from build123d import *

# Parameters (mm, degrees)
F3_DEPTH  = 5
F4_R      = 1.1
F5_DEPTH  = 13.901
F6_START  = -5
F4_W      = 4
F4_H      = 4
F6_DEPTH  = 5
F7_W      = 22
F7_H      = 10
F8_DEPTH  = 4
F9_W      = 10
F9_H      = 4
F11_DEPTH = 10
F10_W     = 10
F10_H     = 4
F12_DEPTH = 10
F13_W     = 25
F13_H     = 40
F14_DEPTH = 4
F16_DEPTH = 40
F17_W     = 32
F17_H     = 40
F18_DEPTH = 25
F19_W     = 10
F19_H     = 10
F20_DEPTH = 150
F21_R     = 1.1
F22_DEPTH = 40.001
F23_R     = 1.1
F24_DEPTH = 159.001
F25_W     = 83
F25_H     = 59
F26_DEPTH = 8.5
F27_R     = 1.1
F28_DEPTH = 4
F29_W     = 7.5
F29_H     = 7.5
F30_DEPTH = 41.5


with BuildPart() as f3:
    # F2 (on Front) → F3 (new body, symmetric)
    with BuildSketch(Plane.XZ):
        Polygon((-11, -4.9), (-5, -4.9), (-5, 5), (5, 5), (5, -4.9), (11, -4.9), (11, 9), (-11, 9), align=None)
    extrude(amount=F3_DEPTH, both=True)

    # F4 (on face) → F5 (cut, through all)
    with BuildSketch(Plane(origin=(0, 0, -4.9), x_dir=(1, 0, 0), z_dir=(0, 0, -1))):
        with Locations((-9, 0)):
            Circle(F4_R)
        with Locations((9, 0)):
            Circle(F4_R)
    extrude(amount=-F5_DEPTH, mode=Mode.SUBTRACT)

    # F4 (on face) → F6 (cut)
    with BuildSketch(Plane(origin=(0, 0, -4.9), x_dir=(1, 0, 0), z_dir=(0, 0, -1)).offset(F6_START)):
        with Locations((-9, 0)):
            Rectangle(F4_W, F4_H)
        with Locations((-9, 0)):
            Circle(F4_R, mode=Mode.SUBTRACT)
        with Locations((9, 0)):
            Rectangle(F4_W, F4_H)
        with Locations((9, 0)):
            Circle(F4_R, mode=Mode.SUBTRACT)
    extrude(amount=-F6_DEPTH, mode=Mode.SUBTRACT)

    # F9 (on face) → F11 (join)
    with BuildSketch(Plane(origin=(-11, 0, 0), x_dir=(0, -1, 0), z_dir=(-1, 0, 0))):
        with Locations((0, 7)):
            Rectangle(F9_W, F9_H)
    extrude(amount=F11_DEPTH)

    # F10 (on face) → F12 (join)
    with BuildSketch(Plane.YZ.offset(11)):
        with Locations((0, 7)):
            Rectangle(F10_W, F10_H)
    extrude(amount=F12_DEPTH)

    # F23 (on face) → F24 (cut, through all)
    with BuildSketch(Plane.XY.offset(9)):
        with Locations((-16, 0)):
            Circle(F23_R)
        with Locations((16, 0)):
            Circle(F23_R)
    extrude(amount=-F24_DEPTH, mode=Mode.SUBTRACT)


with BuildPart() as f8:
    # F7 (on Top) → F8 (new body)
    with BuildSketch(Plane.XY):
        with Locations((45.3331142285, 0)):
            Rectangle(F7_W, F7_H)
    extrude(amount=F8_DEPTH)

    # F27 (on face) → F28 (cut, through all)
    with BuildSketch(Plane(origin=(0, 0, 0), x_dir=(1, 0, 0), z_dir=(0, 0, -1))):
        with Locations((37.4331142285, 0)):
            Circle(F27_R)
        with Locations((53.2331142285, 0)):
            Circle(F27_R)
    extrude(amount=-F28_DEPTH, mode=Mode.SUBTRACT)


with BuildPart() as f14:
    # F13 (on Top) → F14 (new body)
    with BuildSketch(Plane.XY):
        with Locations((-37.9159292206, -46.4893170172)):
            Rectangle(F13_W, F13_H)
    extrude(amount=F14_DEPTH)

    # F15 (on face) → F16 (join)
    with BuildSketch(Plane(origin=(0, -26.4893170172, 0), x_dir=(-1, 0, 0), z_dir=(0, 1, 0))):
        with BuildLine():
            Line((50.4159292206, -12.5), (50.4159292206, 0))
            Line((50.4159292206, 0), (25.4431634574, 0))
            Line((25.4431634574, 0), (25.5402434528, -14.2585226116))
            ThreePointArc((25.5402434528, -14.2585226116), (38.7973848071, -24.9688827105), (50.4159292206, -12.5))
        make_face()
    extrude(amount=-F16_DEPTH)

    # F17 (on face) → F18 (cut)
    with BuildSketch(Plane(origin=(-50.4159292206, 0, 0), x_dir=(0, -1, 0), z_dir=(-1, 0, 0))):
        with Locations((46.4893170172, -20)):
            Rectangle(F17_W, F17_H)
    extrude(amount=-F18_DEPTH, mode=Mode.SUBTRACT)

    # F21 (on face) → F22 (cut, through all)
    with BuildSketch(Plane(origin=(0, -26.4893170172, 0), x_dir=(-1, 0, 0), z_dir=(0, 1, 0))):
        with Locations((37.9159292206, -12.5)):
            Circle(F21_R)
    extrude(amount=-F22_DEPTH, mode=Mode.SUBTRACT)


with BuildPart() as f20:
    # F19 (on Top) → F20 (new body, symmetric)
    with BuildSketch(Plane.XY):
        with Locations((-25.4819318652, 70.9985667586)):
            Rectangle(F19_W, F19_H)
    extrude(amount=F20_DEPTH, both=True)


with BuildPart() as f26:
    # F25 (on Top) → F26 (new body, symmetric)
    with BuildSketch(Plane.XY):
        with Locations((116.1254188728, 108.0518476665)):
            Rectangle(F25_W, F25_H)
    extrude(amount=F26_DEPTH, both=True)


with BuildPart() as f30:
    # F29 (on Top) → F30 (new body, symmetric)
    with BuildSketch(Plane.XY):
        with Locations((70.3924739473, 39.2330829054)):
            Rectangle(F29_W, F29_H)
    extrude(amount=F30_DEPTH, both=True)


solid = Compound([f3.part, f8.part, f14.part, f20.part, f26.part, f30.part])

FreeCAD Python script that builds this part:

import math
import FreeCAD as App
import Part
import Sketcher

V = App.Vector


def add_polygon(sketch, points):
    """Adds a closed chain of lines whose ends are joined by coincident constraints."""
    first, n = sketch.GeometryCount, len(points)
    for a, b in zip(points, points[1:] + points[:1]):
        sketch.addGeometry(Part.LineSegment(App.Vector(*a, 0), App.Vector(*b, 0)), False)
    for i in range(n):
        sketch.addConstraint(Sketcher.Constraint("Coincident", first + i, 2, first + (i + 1) % n, 1))

doc = App.newDocument("Part")
body = doc.addObject("PartDesign::Body", "Body")

# Sketch on XZ plane
sketch1 = body.newObject("Sketcher::SketchObject", "Sketch")
sketch1.AttachmentSupport = (doc.getObject("XZ_Plane"), [""])
sketch1.MapMode = "FlatFace"
add_polygon(sketch1, [(-11, -4.9), (-5, -4.9), (-5, 5), (5, 5), (5, -4.9), (11, -4.9), (11, 9), (-11, 9)])  # lines 0-7
sketch1.addConstraint([
    Sketcher.Constraint("Horizontal", 0),
    Sketcher.Constraint("Vertical", 1),
    Sketcher.Constraint("Horizontal", 2),
    Sketcher.Constraint("Vertical", 3),
    Sketcher.Constraint("Horizontal", 4),
    Sketcher.Constraint("Vertical", 5),
    Sketcher.Constraint("Horizontal", 6),
    Sketcher.Constraint("Vertical", 7),
    Sketcher.Constraint("Symmetric", 0, 2, 3, 2, -2),
    Sketcher.Constraint("Equal", 0, 4),
    Sketcher.Constraint("DistanceX", 0, 1, 0, 2, 6.0),
    Sketcher.Constraint("DistanceX", 2, 1, 2, 2, 10.0),
    Sketcher.Constraint("DistanceY", 1, 1, 1, 2, 9.9),
    Sketcher.Constraint("DistanceY", 5, 1, 5, 2, 13.9),
    Sketcher.Constraint("DistanceY", -1, 1, 1, 2, 5.0),
])
pad1 = body.newObject("PartDesign::Pad", "Pad")
pad1.Profile = sketch1
pad1.Length = 10
pad1.Midplane = True

# Sketch on XY plane
sketch2 = body.newObject("Sketcher::SketchObject", "Sketch001")
sketch2.AttachmentSupport = (doc.getObject("XY_Plane"), [""])
sketch2.MapMode = "FlatFace"
sketch2.AttachmentOffset = App.Placement(V(0, 0, -4.9), App.Rotation())
sketch2.addGeometry([
    Part.Circle(V(-9, 0, 0), V(0, 0, 1), 1.1),
    Part.Circle(V(9, 0, 0), V(0, 0, 1), 1.1),
], False)
sketch2.addConstraint([
    Sketcher.Constraint("Equal", 0, 1),
    Sketcher.Constraint("Symmetric", 0, 3, 1, 3, -1, 1),
    Sketcher.Constraint("PointOnObject", 0, 3, -1),
    Sketcher.Constraint("Diameter", 0, 2.2),
    Sketcher.Constraint("DistanceX", 0, 3, -1, 1, 9.0),
])
pocket1 = body.newObject("PartDesign::Pocket", "Pocket")
pocket1.Profile = sketch2
pocket1.Type = "ThroughAll"
pocket1.Reversed = True

# Sketch on XY plane
sketch3 = body.newObject("Sketcher::SketchObject", "Sketch002")
sketch3.AttachmentSupport = (doc.getObject("XY_Plane"), [""])
sketch3.MapMode = "FlatFace"
sketch3.AttachmentOffset = App.Placement(V(0, 0, 0.1), App.Rotation())
add_polygon(sketch3, [(-11, -2), (-11, 2), (-7, 2), (-7, -2)])  # lines 0-3
sketch3.addGeometry(Part.Circle(V(-9, 0, 0), V(0, 0, 1), 1.1), False)  # 4
add_polygon(sketch3, [(7, -2), (7, 2), (11, 2), (11, -2)])  # lines 5-8
sketch3.addGeometry(Part.Circle(V(9, 0, 0), V(0, 0, 1), 1.1), False)  # 9
sketch3.addConstraint([
    Sketcher.Constraint("Vertical", 0),
    Sketcher.Constraint("Horizontal", 1),
    Sketcher.Constraint("Vertical", 2),
    Sketcher.Constraint("Horizontal", 3),
    Sketcher.Constraint("Vertical", 5),
    Sketcher.Constraint("Horizontal", 6),
    Sketcher.Constraint("Vertical", 7),
    Sketcher.Constraint("Horizontal", 8),
    Sketcher.Constraint("Equal", 4, 9),
    Sketcher.Constraint("Symmetric", 4, 3, 9, 3, -1, 1),
    Sketcher.Constraint("Symmetric", 2, 2, 5, 2, -1, 1),
    Sketcher.Constraint("Symmetric", 0, 2, 7, 2, -1, 1),
    Sketcher.Constraint("PointOnObject", 4, 3, -1),
    Sketcher.Constraint("Horizontal", 1, 2, 5, 2),
    Sketcher.Constraint("Equal", 8, 0),
    Sketcher.Constraint("Diameter", 4, 2.2),
    Sketcher.Constraint("DistanceX", 1, 1, 1, 2, 4.0),
    Sketcher.Constraint("DistanceX", 4, 3, -1, 1, 9.0),
    Sketcher.Constraint("DistanceX", 0, 2, -1, 1, 11.0),
])
pocket2 = body.newObject("PartDesign::Pocket", "Pocket001")
pocket2.Profile = sketch3
pocket2.Length = 5
pocket2.Reversed = True

# Sketch on YZ plane
sketch4 = body.newObject("Sketcher::SketchObject", "Sketch003")
sketch4.AttachmentSupport = (doc.getObject("YZ_Plane"), [""])
sketch4.MapMode = "FlatFace"
sketch4.AttachmentOffset = App.Placement(V(0, 0, -11), App.Rotation())
add_polygon(sketch4, [(5, 9), (5, 5), (-5, 5), (-5, 9)])  # lines 0-3
sketch4.addConstraint([
    Sketcher.Constraint("Vertical", 0),
    Sketcher.Constraint("Horizontal", 1),
    Sketcher.Constraint("Vertical", 2),
    Sketcher.Constraint("Horizontal", 3),
    Sketcher.Constraint("DistanceX", 1, 2, 1, 1, 10.0),
    Sketcher.Constraint("DistanceY", 0, 2, 0, 1, 4.0),
    Sketcher.Constraint("DistanceX", -1, 1, 0, 2, 5.0),
    Sketcher.Constraint("DistanceY", -1, 1, 0, 2, 5.0),
])
pad2 = body.newObject("PartDesign::Pad", "Pad001")
pad2.Profile = sketch4
pad2.Length = 10
pad2.Reversed = True

# Sketch on YZ plane
sketch5 = body.newObject("Sketcher::SketchObject", "Sketch004")
sketch5.AttachmentSupport = (doc.getObject("YZ_Plane"), [""])
sketch5.MapMode = "FlatFace"
sketch5.AttachmentOffset = App.Placement(V(0, 0, 11), App.Rotation())
add_polygon(sketch5, [(-5, 9), (-5, 5), (5, 5), (5, 9)])  # lines 0-3
sketch5.addConstraint([
    Sketcher.Constraint("Vertical", 0),
    Sketcher.Constraint("Horizontal", 1),
    Sketcher.Constraint("Vertical", 2),
    Sketcher.Constraint("Horizontal", 3),
    Sketcher.Constraint("DistanceX", 1, 1, 1, 2, 10.0),
    Sketcher.Constraint("DistanceY", 0, 2, 0, 1, 4.0),
    Sketcher.Constraint("DistanceX", 0, 2, -1, 1, 5.0),
    Sketcher.Constraint("DistanceY", -1, 1, 0, 2, 5.0),
])
pad3 = body.newObject("PartDesign::Pad", "Pad002")
pad3.Profile = sketch5
pad3.Length = 10

# Sketch on XY plane
sketch6 = body.newObject("Sketcher::SketchObject", "Sketch005")
sketch6.AttachmentSupport = (doc.getObject("XY_Plane"), [""])
sketch6.MapMode = "FlatFace"
sketch6.AttachmentOffset = App.Placement(V(0, 0, 9), App.Rotation())
sketch6.addGeometry([
    Part.Circle(V(-16, 0, 0), V(0, 0, 1), 1.1),
    Part.Circle(V(16, 0, 0), V(0, 0, 1), 1.1),
], False)
sketch6.addConstraint([
    Sketcher.Constraint("Equal", 0, 1),
    Sketcher.Constraint("Symmetric", 0, 3, 1, 3, -1, 1),
    Sketcher.Constraint("PointOnObject", 0, 3, -1),
    Sketcher.Constraint("Diameter", 0, 2.2),
    Sketcher.Constraint("DistanceX", 0, 3, -1, 1, 16.0),
])
pocket3 = body.newObject("PartDesign::Pocket", "Pocket002")
pocket3.Profile = sketch6
pocket3.Type = "ThroughAll"
body2 = doc.addObject("PartDesign::Body", "Body001")

# Sketch on XY plane
sketch7 = body2.newObject("Sketcher::SketchObject", "Sketch006")
sketch7.AttachmentSupport = (doc.getObject("XY_Plane001"), [""])
sketch7.MapMode = "FlatFace"
add_polygon(sketch7, [(34.333114, 5), (34.333114, -5), (56.333114, -5), (56.333114, 5)])  # lines 0-3
sketch7.addConstraint([
    Sketcher.Constraint("Vertical", 0),
    Sketcher.Constraint("Horizontal", 1),
    Sketcher.Constraint("Vertical", 2),
    Sketcher.Constraint("Horizontal", 3),
    Sketcher.Constraint("DistanceX", 1, 1, 1, 2, 22.0),
    Sketcher.Constraint("DistanceY", 0, 2, 0, 1, 10.0),
    Sketcher.Constraint("DistanceY", 0, 2, -1, 1, 5.0),
    Sketcher.Constraint("DistanceX", -1, 1, 0, 2, 34.333114),
])
pad4 = body2.newObject("PartDesign::Pad", "Pad003")
pad4.Profile = sketch7
pad4.Length = 4

# Sketch on XY plane
sketch8 = body2.newObject("Sketcher::SketchObject", "Sketch007")
sketch8.AttachmentSupport = (doc.getObject("XY_Plane001"), [""])
sketch8.MapMode = "FlatFace"
sketch8.addGeometry([
    Part.Circle(V(37.433114, 0, 0), V(0, 0, 1), 1.1),
    Part.Circle(V(53.233114, 0, 0), V(0, 0, 1), 1.1),
], False)
sketch8.addConstraint([
    Sketcher.Constraint("Equal", 0, 1),
    Sketcher.Constraint("PointOnObject", 0, 3, -1),
    Sketcher.Constraint("PointOnObject", 1, 3, -1),
    Sketcher.Constraint("Diameter", 0, 2.2),
    Sketcher.Constraint("DistanceX", 0, 3, 1, 3, 15.8),
    Sketcher.Constraint("DistanceX", -1, 1, 0, 3, 37.433114),
])
pocket4 = body2.newObject("PartDesign::Pocket", "Pocket003")
pocket4.Profile = sketch8
pocket4.Type = "ThroughAll"
pocket4.Reversed = True
body3 = doc.addObject("PartDesign::Body", "Body002")

# Sketch on XY plane
sketch9 = body3.newObject("Sketcher::SketchObject", "Sketch008")
sketch9.AttachmentSupport = (doc.getObject("XY_Plane002"), [""])
sketch9.MapMode = "FlatFace"
add_polygon(sketch9, [(-50.415929, -26.489317), (-50.415929, -66.489317), (-25.415929, -66.489317), (-25.415929, -26.489317)])  # lines 0-3
sketch9.addConstraint([
    Sketcher.Constraint("Vertical", 0),
    Sketcher.Constraint("Horizontal", 1),
    Sketcher.Constraint("Vertical", 2),
    Sketcher.Constraint("Horizontal", 3),
    Sketcher.Constraint("DistanceX", 1, 1, 1, 2, 25.0),
    Sketcher.Constraint("DistanceY", 0, 2, 0, 1, 40.0),
    Sketcher.Constraint("DistanceX", 0, 2, -1, 1, 50.415929),
    Sketcher.Constraint("DistanceY", 0, 2, -1, 1, 66.489317),
])
pad5 = body3.newObject("PartDesign::Pad", "Pad004")
pad5.Profile = sketch9
pad5.Length = 4

# Sketch on XZ plane
sketch10 = body3.newObject("Sketcher::SketchObject", "Sketch009")
sketch10.AttachmentSupport = (doc.getObject("XZ_Plane002"), [""])
sketch10.MapMode = "FlatFace"
sketch10.AttachmentOffset = App.Placement(V(0, 0, 26.489317), App.Rotation())
sketch10.addGeometry([
    Part.LineSegment(V(-50.415929, -12.5, 0), V(-50.415929, 0, 0)),
    Part.LineSegment(V(-50.415929, 0, 0), V(-25.443163, 0, 0)),
    Part.LineSegment(V(-25.443163, 0, 0), V(-25.540243, -14.258523, 0)),
    Part.ArcOfCircle(Part.Circle(V(-37.915929, -12.5, 0), V(0, 0, 1), 12.5), math.radians(180), math.radians(351.912698)),
], False)
sketch10.addConstraint([
    Sketcher.Constraint("Coincident", 0, 2, 1, 1),
    Sketcher.Constraint("Coincident", 1, 2, 2, 1),
    Sketcher.Constraint("Coincident", 2, 2, 3, 2),
    Sketcher.Constraint("Tangent", 3, 1, 0, 1),
    Sketcher.Constraint("Vertical", 0),
    Sketcher.Constraint("Horizontal", 1),
    Sketcher.Constraint("PointOnObject", 0, 2, -1),
    Sketcher.Constraint("Radius", 3, 12.5),
    Sketcher.Constraint("DistanceY", 0, 1, 0, 2, 12.5),
    Sketcher.Constraint("DistanceX", 1, 1, 1, 2, 24.972766),
    Sketcher.Constraint("DistanceX", 3, 3, -1, 1, 37.915929),
    Sketcher.Constraint("DistanceX", 2, 2, 1, 2, 0.09708),
])
pad6 = body3.newObject("PartDesign::Pad", "Pad005")
pad6.Profile = sketch10
pad6.Length = 40

# Sketch on YZ plane
sketch11 = body3.newObject("Sketcher::SketchObject", "Sketch010")
sketch11.AttachmentSupport = (doc.getObject("YZ_Plane002"), [""])
sketch11.MapMode = "FlatFace"
sketch11.AttachmentOffset = App.Placement(V(0, 0, -50.415929), App.Rotation())
add_polygon(sketch11, [(-30.489317, 0), (-30.489317, -40), (-62.489317, -40), (-62.489317, 0)])  # lines 0-3
sketch11.addConstraint([
    Sketcher.Constraint("Vertical", 0),
    Sketcher.Constraint("Horizontal", 1),
    Sketcher.Constraint("Vertical", 2),
    Sketcher.Constraint("Horizontal", 3),
    Sketcher.Constraint("PointOnObject", 2, 2, -1),
    Sketcher.Constraint("DistanceX", 1, 2, 1, 1, 32.0),
    Sketcher.Constraint("DistanceY", 0, 2, 0, 1, 40.0),
    Sketcher.Constraint("DistanceX", 0, 2, -1, 1, 30.489317),
])
pocket5 = body3.newObject("PartDesign::Pocket", "Pocket004")
pocket5.Profile = sketch11
pocket5.Length = 25
pocket5.Reversed = True

# Sketch on XZ plane
sketch12 = body3.newObject("Sketcher::SketchObject", "Sketch011")
sketch12.AttachmentSupport = (doc.getObject("XZ_Plane002"), [""])
sketch12.MapMode = "FlatFace"
sketch12.AttachmentOffset = App.Placement(V(0, 0, 26.489317), App.Rotation())
sketch12.addGeometry(Part.Circle(V(-37.915929, -12.5, 0), V(0, 0, 1), 1.1), False)
sketch12.addConstraint([
    Sketcher.Constraint("Diameter", 0, 2.2),
    Sketcher.Constraint("DistanceY", 0, 3, -1, 1, 12.5),
    Sketcher.Constraint("DistanceX", 0, 3, -1, 1, 37.915929),
])
pocket6 = body3.newObject("PartDesign::Pocket", "Pocket005")
pocket6.Profile = sketch12
pocket6.Type = "ThroughAll"
pocket6.Reversed = True
body4 = doc.addObject("PartDesign::Body", "Body003")

# Sketch on XY plane
sketch13 = body4.newObject("Sketcher::SketchObject", "Sketch012")
sketch13.AttachmentSupport = (doc.getObject("XY_Plane003"), [""])
sketch13.MapMode = "FlatFace"
add_polygon(sketch13, [(-30.481932, 75.998567), (-30.481932, 65.998567), (-20.481932, 65.998567), (-20.481932, 75.998567)])  # lines 0-3
sketch13.addConstraint([
    Sketcher.Constraint("Vertical", 0),
    Sketcher.Constraint("Horizontal", 1),
    Sketcher.Constraint("Vertical", 2),
    Sketcher.Constraint("Horizontal", 3),
    Sketcher.Constraint("Equal", 3, 0),
    Sketcher.Constraint("DistanceX", 1, 1, 1, 2, 10.0),
    Sketcher.Constraint("DistanceX", 0, 2, -1, 1, 30.481932),
    Sketcher.Constraint("DistanceY", -1, 1, 0, 2, 65.998567),
])
pad7 = body4.newObject("PartDesign::Pad", "Pad006")
pad7.Profile = sketch13
pad7.Length = 300
pad7.Midplane = True
body5 = doc.addObject("PartDesign::Body", "Body004")

# Sketch on XY plane
sketch14 = body5.newObject("Sketcher::SketchObject", "Sketch013")
sketch14.AttachmentSupport = (doc.getObject("XY_Plane004"), [""])
sketch14.MapMode = "FlatFace"
add_polygon(sketch14, [(74.625419, 137.551848), (74.625419, 78.551848), (157.625419, 78.551848), (157.625419, 137.551848)])  # lines 0-3
sketch14.addConstraint([
    Sketcher.Constraint("Vertical", 0),
    Sketcher.Constraint("Horizontal", 1),
    Sketcher.Constraint("Vertical", 2),
    Sketcher.Constraint("Horizontal", 3),
    Sketcher.Constraint("DistanceX", 1, 1, 1, 2, 83.0),
    Sketcher.Constraint("DistanceY", 0, 2, 0, 1, 59.0),
    Sketcher.Constraint("DistanceX", -1, 1, 0, 2, 74.625419),
    Sketcher.Constraint("DistanceY", -1, 1, 0, 2, 78.551848),
])
pad8 = body5.newObject("PartDesign::Pad", "Pad007")
pad8.Profile = sketch14
pad8.Length = 17
pad8.Midplane = True
body6 = doc.addObject("PartDesign::Body", "Body005")

# Sketch on XY plane
sketch15 = body6.newObject("Sketcher::SketchObject", "Sketch014")
sketch15.AttachmentSupport = (doc.getObject("XY_Plane005"), [""])
sketch15.MapMode = "FlatFace"
add_polygon(sketch15, [(66.642474, 42.983083), (66.642474, 35.483083), (74.142474, 35.483083), (74.142474, 42.983083)])  # lines 0-3
sketch15.addConstraint([
    Sketcher.Constraint("Vertical", 0),
    Sketcher.Constraint("Horizontal", 1),
    Sketcher.Constraint("Vertical", 2),
    Sketcher.Constraint("Horizontal", 3),
    Sketcher.Constraint("Equal", 3, 0),
    Sketcher.Constraint("DistanceX", 1, 1, 1, 2, 7.5),
    Sketcher.Constraint("DistanceX", -1, 1, 0, 2, 66.642474),
    Sketcher.Constraint("DistanceY", -1, 1, 0, 2, 35.483083),
])
pad9 = body6.newObject("PartDesign::Pad", "Pad008")
pad9.Profile = sketch15
pad9.Length = 83
pad9.Midplane = True

doc.recompute()
